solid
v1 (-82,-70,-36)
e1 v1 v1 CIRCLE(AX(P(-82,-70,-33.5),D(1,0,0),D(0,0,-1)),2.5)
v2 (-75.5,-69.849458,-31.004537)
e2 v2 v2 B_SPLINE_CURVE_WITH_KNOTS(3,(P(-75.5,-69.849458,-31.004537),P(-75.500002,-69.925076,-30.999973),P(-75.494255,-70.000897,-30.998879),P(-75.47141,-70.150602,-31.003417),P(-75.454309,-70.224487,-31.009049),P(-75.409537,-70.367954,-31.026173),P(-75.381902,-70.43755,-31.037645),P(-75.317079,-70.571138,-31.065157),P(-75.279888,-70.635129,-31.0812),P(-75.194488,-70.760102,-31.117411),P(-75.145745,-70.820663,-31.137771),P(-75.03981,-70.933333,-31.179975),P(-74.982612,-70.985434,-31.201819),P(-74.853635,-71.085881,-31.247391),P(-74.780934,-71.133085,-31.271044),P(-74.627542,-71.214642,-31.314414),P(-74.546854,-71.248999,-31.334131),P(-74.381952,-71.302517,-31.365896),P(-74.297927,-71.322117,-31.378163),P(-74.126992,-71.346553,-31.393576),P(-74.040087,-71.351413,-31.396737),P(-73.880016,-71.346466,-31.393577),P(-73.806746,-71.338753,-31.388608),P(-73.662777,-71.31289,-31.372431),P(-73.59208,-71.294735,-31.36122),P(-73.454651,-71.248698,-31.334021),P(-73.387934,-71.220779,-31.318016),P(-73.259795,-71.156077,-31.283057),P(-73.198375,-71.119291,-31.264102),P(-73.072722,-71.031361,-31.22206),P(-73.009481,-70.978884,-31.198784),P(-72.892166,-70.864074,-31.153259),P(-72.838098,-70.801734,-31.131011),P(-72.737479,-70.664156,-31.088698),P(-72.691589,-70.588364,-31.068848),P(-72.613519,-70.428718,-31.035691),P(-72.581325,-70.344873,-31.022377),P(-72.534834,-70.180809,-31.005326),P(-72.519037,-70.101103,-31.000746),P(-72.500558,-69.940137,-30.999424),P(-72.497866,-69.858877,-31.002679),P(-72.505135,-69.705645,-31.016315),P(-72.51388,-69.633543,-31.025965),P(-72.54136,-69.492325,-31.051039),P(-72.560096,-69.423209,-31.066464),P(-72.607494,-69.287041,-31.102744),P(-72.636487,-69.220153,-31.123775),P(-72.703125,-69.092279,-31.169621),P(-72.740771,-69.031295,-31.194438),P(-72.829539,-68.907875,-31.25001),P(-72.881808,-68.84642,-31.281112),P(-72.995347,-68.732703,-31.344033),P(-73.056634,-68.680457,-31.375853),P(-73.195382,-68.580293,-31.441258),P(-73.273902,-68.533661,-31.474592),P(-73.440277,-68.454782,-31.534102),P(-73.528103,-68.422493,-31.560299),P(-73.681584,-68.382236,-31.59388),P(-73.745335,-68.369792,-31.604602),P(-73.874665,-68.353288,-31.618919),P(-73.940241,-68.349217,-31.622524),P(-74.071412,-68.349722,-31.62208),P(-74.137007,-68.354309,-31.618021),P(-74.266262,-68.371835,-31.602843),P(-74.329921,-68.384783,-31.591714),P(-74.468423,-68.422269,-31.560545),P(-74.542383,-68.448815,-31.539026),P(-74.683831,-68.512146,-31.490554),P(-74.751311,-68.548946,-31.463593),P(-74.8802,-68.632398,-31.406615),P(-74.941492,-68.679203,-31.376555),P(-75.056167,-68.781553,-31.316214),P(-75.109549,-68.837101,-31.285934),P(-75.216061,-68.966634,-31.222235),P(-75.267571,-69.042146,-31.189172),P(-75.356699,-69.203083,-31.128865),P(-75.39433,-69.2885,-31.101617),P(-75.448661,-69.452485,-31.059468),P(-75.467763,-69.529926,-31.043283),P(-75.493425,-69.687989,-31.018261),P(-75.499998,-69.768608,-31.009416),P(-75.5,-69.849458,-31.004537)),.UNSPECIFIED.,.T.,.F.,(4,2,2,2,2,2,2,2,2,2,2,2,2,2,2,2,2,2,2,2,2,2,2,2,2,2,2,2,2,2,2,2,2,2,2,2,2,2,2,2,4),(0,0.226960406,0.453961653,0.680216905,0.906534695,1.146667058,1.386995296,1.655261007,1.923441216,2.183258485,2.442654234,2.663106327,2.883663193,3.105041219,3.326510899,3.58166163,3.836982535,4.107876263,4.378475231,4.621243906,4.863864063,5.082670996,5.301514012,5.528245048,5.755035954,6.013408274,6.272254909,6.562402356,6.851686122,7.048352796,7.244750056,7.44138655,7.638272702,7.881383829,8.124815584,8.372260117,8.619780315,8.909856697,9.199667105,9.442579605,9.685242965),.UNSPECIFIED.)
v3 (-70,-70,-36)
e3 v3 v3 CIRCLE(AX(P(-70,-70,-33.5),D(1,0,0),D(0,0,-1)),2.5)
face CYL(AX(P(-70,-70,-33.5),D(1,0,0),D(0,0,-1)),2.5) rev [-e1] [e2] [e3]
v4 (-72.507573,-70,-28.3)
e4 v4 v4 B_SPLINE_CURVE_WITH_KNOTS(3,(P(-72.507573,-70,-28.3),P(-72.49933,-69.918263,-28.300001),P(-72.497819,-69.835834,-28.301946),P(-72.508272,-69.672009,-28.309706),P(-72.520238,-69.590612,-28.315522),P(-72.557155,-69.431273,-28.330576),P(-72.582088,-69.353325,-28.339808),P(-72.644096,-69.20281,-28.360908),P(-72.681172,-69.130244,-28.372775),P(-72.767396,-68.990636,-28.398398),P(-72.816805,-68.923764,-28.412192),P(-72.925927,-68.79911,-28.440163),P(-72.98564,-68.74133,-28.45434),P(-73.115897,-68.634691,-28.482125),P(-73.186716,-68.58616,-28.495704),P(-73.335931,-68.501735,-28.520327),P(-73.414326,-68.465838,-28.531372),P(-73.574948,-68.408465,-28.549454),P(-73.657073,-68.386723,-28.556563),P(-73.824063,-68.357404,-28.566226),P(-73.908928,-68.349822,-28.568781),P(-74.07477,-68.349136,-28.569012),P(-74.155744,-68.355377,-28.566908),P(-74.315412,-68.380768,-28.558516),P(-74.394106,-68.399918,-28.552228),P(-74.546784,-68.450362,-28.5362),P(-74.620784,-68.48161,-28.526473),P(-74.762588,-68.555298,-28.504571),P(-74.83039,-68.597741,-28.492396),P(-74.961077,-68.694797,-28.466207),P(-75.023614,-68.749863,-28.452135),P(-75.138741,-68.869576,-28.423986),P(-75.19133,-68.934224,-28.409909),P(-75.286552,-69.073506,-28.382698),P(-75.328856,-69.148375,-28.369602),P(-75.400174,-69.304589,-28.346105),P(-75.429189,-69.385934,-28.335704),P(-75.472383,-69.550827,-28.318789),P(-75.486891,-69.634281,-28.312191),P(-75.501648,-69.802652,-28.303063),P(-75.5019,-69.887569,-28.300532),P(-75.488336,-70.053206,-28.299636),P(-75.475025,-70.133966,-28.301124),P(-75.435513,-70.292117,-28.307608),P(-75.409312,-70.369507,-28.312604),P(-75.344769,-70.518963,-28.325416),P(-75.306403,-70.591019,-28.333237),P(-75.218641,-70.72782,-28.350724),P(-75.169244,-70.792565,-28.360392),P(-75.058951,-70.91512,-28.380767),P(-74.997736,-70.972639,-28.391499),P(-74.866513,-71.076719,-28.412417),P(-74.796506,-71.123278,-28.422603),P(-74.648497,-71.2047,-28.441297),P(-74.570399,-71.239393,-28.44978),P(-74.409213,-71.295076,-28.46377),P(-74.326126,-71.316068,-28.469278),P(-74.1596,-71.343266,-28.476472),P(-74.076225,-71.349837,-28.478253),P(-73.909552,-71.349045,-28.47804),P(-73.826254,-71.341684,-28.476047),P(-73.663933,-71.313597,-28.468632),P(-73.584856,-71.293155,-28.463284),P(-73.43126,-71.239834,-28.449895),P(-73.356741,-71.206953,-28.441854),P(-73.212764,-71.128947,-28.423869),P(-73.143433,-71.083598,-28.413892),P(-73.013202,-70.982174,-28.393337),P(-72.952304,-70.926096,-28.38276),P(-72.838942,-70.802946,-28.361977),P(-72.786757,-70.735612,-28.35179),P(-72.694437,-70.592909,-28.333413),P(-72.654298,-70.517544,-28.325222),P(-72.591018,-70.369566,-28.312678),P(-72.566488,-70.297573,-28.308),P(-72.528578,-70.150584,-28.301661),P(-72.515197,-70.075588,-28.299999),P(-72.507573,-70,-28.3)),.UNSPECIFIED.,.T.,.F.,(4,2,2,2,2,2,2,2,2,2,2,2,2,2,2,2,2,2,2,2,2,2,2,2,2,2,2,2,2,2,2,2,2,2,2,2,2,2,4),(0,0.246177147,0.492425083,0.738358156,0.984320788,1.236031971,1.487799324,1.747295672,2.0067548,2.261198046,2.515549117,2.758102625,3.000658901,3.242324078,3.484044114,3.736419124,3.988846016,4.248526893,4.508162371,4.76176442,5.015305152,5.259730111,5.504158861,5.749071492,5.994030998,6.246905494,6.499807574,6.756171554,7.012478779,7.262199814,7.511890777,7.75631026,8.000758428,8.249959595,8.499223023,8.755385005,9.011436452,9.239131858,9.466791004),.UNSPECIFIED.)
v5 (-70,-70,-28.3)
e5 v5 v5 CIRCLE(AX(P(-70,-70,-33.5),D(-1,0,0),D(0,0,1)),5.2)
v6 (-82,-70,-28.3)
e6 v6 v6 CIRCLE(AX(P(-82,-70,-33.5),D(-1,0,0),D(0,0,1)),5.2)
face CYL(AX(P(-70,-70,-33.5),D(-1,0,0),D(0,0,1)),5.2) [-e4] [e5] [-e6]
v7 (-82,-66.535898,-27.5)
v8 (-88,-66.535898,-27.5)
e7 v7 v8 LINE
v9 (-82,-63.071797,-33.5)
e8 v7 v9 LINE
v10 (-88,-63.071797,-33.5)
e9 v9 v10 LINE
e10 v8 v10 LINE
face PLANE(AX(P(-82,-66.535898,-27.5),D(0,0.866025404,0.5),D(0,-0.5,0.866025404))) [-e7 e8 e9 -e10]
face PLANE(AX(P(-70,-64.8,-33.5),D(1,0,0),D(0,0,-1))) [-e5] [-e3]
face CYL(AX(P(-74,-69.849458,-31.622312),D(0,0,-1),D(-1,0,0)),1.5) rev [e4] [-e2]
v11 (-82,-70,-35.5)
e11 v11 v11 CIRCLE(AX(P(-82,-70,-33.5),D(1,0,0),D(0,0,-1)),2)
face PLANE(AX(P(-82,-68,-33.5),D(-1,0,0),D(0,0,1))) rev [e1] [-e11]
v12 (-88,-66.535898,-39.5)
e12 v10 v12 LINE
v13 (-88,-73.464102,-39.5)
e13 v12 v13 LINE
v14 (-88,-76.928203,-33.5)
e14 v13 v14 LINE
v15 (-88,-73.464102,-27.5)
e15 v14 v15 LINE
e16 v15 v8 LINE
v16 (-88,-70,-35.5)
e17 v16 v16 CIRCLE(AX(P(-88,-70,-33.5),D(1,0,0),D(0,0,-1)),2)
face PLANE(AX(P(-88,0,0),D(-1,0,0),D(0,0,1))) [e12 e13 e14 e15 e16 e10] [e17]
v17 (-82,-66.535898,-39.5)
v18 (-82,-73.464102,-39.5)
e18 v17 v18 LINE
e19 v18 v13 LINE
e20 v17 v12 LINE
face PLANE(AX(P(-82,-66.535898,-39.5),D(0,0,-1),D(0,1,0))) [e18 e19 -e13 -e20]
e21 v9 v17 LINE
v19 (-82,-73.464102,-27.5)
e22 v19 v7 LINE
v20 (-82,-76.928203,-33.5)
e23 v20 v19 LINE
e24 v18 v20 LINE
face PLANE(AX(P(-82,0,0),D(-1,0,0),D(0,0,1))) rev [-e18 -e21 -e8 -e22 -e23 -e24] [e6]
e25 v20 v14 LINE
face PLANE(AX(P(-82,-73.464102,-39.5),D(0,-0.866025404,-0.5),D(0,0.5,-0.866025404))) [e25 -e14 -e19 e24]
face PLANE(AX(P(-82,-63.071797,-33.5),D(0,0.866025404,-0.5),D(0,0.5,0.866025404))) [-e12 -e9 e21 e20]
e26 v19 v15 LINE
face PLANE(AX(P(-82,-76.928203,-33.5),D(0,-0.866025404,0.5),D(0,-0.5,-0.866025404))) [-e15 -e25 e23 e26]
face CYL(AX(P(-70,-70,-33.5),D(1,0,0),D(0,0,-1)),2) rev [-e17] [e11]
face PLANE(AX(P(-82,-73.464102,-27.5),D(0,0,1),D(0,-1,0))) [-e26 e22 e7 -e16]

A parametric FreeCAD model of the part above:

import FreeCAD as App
import Part
import Sketcher
from FreeCAD import Vector
Q = App.Units.Quantity

doc = App.newDocument("Part")
body = doc.addObject("PartDesign::Body", "Body")

# Sketch on YZ plane
sketch1 = body.newObject("Sketcher::SketchObject", "Sketch")
sketch1.AttachmentSupport = (doc.getObject("YZ_Plane"), [""])
sketch1.MapMode = "FlatFace"
sketch1.AttachmentOffset = App.Placement(Vector(0, 0, -88), App.Rotation())
sketch1.addGeometry([
    Part.LineSegment(Vector(-76.928203, -33.5, 0), Vector(-73.464102, -27.5, 0)),  # 0
    Part.LineSegment(Vector(-73.464102, -27.5, 0), Vector(-66.535898, -27.5, 0)),  # 1
    Part.LineSegment(Vector(-66.535898, -27.5, 0), Vector(-63.071797, -33.5, 0)),  # 2
    Part.LineSegment(Vector(-63.071797, -33.5, 0), Vector(-66.535898, -39.5, 0)),  # 3
    Part.LineSegment(Vector(-66.535898, -39.5, 0), Vector(-73.464102, -39.5, 0)),  # 4
    Part.LineSegment(Vector(-73.464102, -39.5, 0), Vector(-76.928203, -33.5, 0)),  # 5
], False)
sketch1.addConstraint([
    Sketcher.Constraint("Coincident", 0, 2, 1, 1),
    Sketcher.Constraint("Coincident", 1, 2, 2, 1),
    Sketcher.Constraint("Coincident", 2, 2, 3, 1),
    Sketcher.Constraint("Coincident", 3, 2, 4, 1),
    Sketcher.Constraint("Coincident", 4, 2, 5, 1),
    Sketcher.Constraint("Coincident", 5, 2, 0, 1),
    Sketcher.Constraint("Horizontal", 1),
    Sketcher.Constraint("Horizontal", 4),
    Sketcher.Constraint("Parallel", 0, 3),
    Sketcher.Constraint("Parallel", 2, 5),
    Sketcher.Constraint("Horizontal", 2, 2, 5, 2),
    Sketcher.Constraint("Vertical", 1, 2, 3, 2),
    Sketcher.Constraint("Vertical", 0, 2, 4, 2),
    Sketcher.Constraint("Angle", 0, Q("60 deg")),
    Sketcher.Constraint("DistanceY", 2, 2, 1, 2, 6.0),
    Sketcher.Constraint("DistanceY", 0, 2, -1, 1, 27.5),
    Sketcher.Constraint("DistanceX", 0, 2, -1, 1, 73.464102),
    Sketcher.Constraint("DistanceX", 1, 2, -1, 1, 66.535898),
])
pad1 = body.newObject("PartDesign::Pad", "Pad")
pad1.Profile = sketch1
pad1.Length = 6

# Sketch on XY plane
sketch2 = body.newObject("Sketcher::SketchObject", "Sketch001")
sketch2.AttachmentSupport = (doc.getObject("XY_Plane"), [""])
sketch2.MapMode = "FlatFace"
sketch2.AttachmentOffset = App.Placement(Vector(0, 0, -33.5), App.Rotation())
sketch2.addGeometry([
    Part.LineSegment(Vector(-70, -64.8, 0), Vector(-70, -70, 0)),
    Part.LineSegment(Vector(-70, -70, 0), Vector(-82, -70, 0)),
    Part.LineSegment(Vector(-82, -70, 0), Vector(-82, -64.8, 0)),
    Part.LineSegment(Vector(-82, -64.8, 0), Vector(-70, -64.8, 0)),
], False)
sketch2.addGeometry(Part.LineSegment(Vector(-70, -70, 0), Vector(-82, -70, 0)), True)  # axis
sketch2.addConstraint([
    Sketcher.Constraint("Coincident", 0, 2, 1, 1),
    Sketcher.Constraint("Coincident", 1, 2, 2, 1),
    Sketcher.Constraint("Coincident", 2, 2, 3, 1),
    Sketcher.Constraint("Coincident", 3, 2, 0, 1),
    Sketcher.Constraint("Vertical", 0),
    Sketcher.Constraint("Horizontal", 1),
    Sketcher.Constraint("Vertical", 2),
    Sketcher.Constraint("Horizontal", 3),
    Sketcher.Constraint("Horizontal", 4),
    Sketcher.Constraint("Coincident", 4, 1, 0, 2),
    Sketcher.Constraint("Vertical", 2, 2, 4, 2),
    Sketcher.Constraint("DistanceX", 1, 2, 1, 1, 12.0),
    Sketcher.Constraint("DistanceY", 0, 2, 0, 1, 5.2),
    Sketcher.Constraint("DistanceX", 0, 2, -1, 1, 70.0),
    Sketcher.Constraint("DistanceY", 0, 2, -1, 1, 70.0),
])
revolution = body.newObject("PartDesign::Revolution", "Revolution")
revolution.Profile = sketch2
revolution.ReferenceAxis = (sketch2, ["Axis0"])
revolution.Angle = 360

# Sketch on YZ plane
sketch3 = body.newObject("Sketcher::SketchObject", "Sketch002")
sketch3.AttachmentSupport = (doc.getObject("YZ_Plane"), [""])
sketch3.MapMode = "FlatFace"
sketch3.AttachmentOffset = App.Placement(Vector(0, 0, -70), App.Rotation())
sketch3.addGeometry(Part.Circle(Vector(-70, -33.5, 0), Vector(0, 0, 1), 2), False)
sketch3.addConstraint([
    Sketcher.Constraint("Diameter", 0, 4.0),
    Sketcher.Constraint("DistanceX", 0, 3, -1, 1, 70.0),
    Sketcher.Constraint("DistanceY", 0, 3, -1, 1, 33.5),
])
doc.recompute()
hole = body.newObject("PartDesign::Hole", "Hole")
hole.Profile = sketch3
hole.ThreadType = "None"
hole.Diameter = 4
hole.DepthType = "ThroughAll"
hole.HoleCutType = "Counterbore"
hole.HoleCutDiameter = 5
hole.HoleCutDepth = 12

# Sketch on YZ plane
sketch4 = body.newObject("Sketcher::SketchObject", "Sketch003")
sketch4.AttachmentSupport = (doc.getObject("YZ_Plane"), [""])
sketch4.MapMode = "FlatFace"
sketch4.AttachmentOffset = App.Placement(Vector(0, 0, -74), App.Rotation())
sketch4.addGeometry([
    Part.LineSegment(Vector(-69.849458, -27.5, 0), Vector(-69.849458, -31.622312, 0)),
    Part.LineSegment(Vector(-69.849458, -31.622312, 0), Vector(-68.349458, -31.622312, 0)),
    Part.LineSegment(Vector(-68.349458, -31.622312, 0), Vector(-68.349458, -27.5, 0)),
    Part.LineSegment(Vector(-68.349458, -27.5, 0), Vector(-69.849458, -27.5, 0)),
], False)
sketch4.addGeometry(Part.LineSegment(Vector(-69.849458, -31.622312, 0), Vector(-69.849458, -27.5, 0)), True)  # axis
sketch4.addConstraint([
    Sketcher.Constraint("Coincident", 0, 2, 1, 1),
    Sketcher.Constraint("Coincident", 1, 2, 2, 1),
    Sketcher.Constraint("Coincident", 2, 2, 3, 1),
    Sketcher.Constraint("Coincident", 3, 2, 0, 1),
    Sketcher.Constraint("Vertical", 0),
    Sketcher.Constraint("Horizontal", 1),
    Sketcher.Constraint("Vertical", 2),
    Sketcher.Constraint("Horizontal", 3),
    Sketcher.Constraint("Vertical", 4),
    Sketcher.Constraint("Coincident", 4, 1, 0, 2),
    Sketcher.Constraint("Horizontal", 2, 2, 4, 2),
    Sketcher.Constraint("DistanceX", 1, 1, 1, 2, 1.5),
    Sketcher.Constraint("DistanceY", 2, 2, -1, 1, 27.5),
    Sketcher.Constraint("DistanceY", 0, 2, 0, 1, 4.122312),
    Sketcher.Constraint("DistanceX", 0, 2, -1, 1, 69.849458),
])
groove = body.newObject("PartDesign::Groove", "Groove")
groove.Profile = sketch4
groove.ReferenceAxis = (sketch4, ["Axis0"])
groove.Angle = 360

doc.recompute()
